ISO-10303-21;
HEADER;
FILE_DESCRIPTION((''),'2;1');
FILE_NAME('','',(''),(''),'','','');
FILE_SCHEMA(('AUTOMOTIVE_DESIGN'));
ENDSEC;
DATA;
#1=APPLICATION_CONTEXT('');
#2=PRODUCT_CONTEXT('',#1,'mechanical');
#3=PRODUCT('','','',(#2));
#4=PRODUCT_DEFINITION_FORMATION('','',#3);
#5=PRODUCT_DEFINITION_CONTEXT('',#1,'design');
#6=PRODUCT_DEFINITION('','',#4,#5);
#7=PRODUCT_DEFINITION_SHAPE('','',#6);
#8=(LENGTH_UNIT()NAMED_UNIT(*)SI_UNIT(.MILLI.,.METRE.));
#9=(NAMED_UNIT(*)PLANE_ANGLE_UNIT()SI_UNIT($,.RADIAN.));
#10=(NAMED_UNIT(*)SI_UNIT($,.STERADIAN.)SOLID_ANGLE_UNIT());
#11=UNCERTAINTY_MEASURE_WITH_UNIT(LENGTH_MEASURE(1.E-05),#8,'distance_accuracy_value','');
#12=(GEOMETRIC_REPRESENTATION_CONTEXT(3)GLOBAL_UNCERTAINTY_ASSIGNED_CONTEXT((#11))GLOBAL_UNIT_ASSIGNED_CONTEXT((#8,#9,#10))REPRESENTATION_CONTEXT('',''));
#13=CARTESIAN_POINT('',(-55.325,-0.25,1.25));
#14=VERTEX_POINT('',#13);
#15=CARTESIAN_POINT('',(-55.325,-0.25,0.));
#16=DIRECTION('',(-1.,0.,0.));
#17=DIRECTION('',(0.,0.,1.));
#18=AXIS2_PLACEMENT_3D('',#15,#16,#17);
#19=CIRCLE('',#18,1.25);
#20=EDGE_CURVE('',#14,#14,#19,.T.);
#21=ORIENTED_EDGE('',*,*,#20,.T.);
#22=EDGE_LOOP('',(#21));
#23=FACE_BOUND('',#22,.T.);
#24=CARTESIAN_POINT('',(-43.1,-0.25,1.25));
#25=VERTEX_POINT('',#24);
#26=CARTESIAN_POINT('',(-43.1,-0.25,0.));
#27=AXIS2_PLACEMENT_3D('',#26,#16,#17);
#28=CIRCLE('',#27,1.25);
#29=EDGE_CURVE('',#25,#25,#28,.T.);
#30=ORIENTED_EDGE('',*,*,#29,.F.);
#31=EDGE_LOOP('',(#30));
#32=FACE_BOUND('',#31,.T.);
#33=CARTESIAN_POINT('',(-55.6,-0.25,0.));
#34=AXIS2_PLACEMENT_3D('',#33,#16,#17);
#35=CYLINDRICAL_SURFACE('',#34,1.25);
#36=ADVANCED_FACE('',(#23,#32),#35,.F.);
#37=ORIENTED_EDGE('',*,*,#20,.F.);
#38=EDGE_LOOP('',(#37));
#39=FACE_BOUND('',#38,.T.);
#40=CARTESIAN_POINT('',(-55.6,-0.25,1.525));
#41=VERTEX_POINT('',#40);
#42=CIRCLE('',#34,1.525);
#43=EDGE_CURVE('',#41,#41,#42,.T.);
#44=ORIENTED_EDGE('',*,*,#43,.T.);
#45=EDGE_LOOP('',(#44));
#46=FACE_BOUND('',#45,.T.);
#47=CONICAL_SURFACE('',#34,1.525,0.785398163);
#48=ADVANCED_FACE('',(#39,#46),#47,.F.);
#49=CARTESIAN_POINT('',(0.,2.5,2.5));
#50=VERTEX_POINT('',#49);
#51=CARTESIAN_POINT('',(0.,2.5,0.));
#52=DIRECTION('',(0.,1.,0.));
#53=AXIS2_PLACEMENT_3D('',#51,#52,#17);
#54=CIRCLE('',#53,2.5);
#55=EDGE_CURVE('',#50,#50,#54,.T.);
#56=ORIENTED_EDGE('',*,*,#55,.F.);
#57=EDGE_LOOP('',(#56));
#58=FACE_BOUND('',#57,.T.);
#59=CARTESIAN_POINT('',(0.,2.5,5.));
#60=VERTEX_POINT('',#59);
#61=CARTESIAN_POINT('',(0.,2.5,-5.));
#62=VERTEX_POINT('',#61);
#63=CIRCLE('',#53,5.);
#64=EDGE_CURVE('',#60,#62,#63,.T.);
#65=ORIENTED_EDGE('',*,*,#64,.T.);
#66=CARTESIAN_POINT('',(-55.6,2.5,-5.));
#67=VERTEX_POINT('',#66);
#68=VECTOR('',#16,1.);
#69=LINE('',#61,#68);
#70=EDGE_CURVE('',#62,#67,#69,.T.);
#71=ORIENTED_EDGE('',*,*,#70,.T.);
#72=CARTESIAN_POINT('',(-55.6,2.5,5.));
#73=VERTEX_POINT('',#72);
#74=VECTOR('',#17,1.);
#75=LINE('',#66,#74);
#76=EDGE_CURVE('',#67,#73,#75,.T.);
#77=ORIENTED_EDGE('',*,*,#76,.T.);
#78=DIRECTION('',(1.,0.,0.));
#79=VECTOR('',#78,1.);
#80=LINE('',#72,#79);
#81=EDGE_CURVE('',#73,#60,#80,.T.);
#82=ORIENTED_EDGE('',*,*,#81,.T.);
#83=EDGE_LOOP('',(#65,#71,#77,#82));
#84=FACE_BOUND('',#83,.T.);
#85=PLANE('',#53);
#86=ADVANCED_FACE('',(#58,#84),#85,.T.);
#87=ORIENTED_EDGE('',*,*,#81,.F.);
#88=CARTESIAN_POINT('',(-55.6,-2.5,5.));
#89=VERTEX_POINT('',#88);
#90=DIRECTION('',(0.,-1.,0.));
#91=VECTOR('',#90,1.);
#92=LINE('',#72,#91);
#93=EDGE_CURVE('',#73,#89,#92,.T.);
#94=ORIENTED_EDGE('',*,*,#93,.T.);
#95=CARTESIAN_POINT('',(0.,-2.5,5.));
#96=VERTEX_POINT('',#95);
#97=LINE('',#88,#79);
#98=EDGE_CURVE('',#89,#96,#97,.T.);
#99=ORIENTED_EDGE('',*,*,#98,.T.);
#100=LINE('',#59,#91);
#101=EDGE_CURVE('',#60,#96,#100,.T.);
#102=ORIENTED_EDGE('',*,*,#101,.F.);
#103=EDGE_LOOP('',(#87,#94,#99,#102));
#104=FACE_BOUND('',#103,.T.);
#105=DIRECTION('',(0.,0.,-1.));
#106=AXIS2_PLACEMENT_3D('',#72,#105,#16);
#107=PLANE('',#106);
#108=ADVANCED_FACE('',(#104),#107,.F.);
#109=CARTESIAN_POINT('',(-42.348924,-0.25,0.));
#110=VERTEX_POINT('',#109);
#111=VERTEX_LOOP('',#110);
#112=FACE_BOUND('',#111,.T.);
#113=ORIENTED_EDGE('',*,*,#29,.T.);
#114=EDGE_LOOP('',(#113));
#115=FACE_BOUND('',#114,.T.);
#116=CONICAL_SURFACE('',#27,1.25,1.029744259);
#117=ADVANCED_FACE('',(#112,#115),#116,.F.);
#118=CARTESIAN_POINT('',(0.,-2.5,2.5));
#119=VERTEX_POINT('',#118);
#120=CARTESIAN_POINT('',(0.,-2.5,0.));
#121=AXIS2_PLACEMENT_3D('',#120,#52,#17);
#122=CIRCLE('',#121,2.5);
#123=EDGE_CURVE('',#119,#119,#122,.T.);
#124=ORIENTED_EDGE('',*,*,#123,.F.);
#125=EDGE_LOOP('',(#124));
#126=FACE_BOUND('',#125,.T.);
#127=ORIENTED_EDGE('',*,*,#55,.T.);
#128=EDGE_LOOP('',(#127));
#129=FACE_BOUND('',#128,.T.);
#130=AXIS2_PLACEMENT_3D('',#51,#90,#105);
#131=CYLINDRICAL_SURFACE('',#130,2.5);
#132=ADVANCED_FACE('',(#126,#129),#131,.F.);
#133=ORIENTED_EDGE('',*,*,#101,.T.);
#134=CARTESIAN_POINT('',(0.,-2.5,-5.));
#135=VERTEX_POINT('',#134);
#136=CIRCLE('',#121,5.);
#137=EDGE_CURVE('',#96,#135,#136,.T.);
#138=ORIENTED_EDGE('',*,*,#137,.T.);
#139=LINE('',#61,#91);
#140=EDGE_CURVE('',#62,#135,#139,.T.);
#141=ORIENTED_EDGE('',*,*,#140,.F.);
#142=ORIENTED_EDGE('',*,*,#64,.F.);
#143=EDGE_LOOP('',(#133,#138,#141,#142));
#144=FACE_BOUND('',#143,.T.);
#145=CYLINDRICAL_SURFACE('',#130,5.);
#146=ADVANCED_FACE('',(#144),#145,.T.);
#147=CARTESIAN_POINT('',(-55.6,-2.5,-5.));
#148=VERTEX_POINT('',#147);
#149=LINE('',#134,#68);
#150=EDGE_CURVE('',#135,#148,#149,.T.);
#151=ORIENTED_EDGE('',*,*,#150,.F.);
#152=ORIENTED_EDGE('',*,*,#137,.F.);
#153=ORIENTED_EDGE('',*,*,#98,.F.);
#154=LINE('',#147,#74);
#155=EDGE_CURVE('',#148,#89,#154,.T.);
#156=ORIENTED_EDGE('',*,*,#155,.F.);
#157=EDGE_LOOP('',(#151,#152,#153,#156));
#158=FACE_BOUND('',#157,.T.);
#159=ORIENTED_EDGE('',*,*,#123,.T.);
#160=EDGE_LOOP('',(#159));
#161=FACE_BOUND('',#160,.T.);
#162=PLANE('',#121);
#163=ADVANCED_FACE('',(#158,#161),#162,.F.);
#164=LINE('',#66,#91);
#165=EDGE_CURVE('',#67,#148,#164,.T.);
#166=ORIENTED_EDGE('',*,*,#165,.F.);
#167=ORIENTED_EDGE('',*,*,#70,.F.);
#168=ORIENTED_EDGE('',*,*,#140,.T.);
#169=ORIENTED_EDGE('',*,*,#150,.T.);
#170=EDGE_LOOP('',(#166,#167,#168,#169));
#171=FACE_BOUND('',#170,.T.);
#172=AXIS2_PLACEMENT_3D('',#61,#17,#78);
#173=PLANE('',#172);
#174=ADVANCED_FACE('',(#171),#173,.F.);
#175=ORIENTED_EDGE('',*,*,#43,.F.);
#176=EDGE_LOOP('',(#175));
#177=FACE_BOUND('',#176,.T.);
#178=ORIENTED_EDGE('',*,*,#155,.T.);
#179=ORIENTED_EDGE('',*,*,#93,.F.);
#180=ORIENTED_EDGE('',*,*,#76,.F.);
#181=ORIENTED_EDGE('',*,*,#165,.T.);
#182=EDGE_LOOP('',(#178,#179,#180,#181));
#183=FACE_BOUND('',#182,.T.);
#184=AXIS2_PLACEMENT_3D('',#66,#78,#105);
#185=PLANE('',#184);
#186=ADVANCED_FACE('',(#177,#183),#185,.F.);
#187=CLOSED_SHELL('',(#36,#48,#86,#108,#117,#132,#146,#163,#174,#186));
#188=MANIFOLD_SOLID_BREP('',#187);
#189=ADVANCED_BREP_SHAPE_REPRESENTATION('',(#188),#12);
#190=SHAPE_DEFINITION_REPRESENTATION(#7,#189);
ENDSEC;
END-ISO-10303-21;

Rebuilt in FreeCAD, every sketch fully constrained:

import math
import FreeCAD as App
import Part
import Sketcher

doc = App.newDocument("Part")
body = doc.addObject("PartDesign::Body", "Body")

# Sketch on XZ plane
sketch1 = body.newObject("Sketcher::SketchObject", "Sketch")
sketch1.AttachmentSupport = (doc.getObject("XZ_Plane"), [""])
sketch1.MapMode = "FlatFace"
sketch1.addGeometry(Part.LineSegment(App.Vector(-55.6, 5, 0), App.Vector(0, 5, 0)), False)
sketch1.addGeometry(Part.ArcOfCircle(Part.Circle(App.Vector(0, 0, 0), App.Vector(0, 0, 1), 5), math.radians(-90), math.radians(90)), False)
sketch1.addGeometry(Part.LineSegment(App.Vector(0, -5, 0), App.Vector(-55.6, -5, 0)), False)
sketch1.addGeometry(Part.LineSegment(App.Vector(-55.6, -5, 0), App.Vector(-55.6, 5, 0)), False)
sketch1.addGeometry(Part.Circle(App.Vector(0, 0, 0), App.Vector(0, 0, 1), 2.5), False)
sketch1.addConstraint(Sketcher.Constraint("Tangent", 0, 2, 1, 2))
sketch1.addConstraint(Sketcher.Constraint("Tangent", 1, 1, 2, 1))
sketch1.addConstraint(Sketcher.Constraint("Coincident", 2, 2, 3, 1))
sketch1.addConstraint(Sketcher.Constraint("Coincident", 3, 2, 0, 1))
sketch1.addConstraint(Sketcher.Constraint("Horizontal", 0))
sketch1.addConstraint(Sketcher.Constraint("Horizontal", 2))
sketch1.addConstraint(Sketcher.Constraint("Vertical", 3))
sketch1.addConstraint(Sketcher.Constraint("Coincident", 1, 3, -1, 1))
sketch1.addConstraint(Sketcher.Constraint("Coincident", 4, 3, -1, 1))
sketch1.addConstraint(Sketcher.Constraint("Diameter", 4, 5.0))
sketch1.addConstraint(Sketcher.Constraint("Radius", 1, 5.0))
sketch1.addConstraint(Sketcher.Constraint("DistanceX", 0, 1, 0, 2, 55.6))
pad1 = body.newObject("PartDesign::Pad", "Pad")
pad1.Profile = sketch1
pad1.Length = 5
pad1.Midplane = True

# Sketch on YZ plane
sketch2 = body.newObject("Sketcher::SketchObject", "Sketch001")
sketch2.AttachmentSupport = (doc.getObject("YZ_Plane"), [""])
sketch2.MapMode = "FlatFace"
sketch2.AttachmentOffset = App.Placement(App.Vector(0, 0, -55.6), App.Rotation())
sketch2.addGeometry(Part.Circle(App.Vector(-0.25, 0, 0), App.Vector(0, 0, 1), 1.25), False)
sketch2.addConstraint(Sketcher.Constraint("PointOnObject", 0, 3, -1))
sketch2.addConstraint(Sketcher.Constraint("Diameter", 0, 2.5))
sketch2.addConstraint(Sketcher.Constraint("DistanceX", 0, 3, -1, 1, 0.25))
doc.recompute()
hole = body.newObject("PartDesign::Hole", "Hole")
hole.Profile = sketch2
hole.ThreadType = "None"
hole.Diameter = 2.5
hole.DepthType = "Dimension"
hole.Depth = 12.5
hole.DrillPoint = "Angled"
hole.DrillPointAngle = 118
hole.HoleCutType = "Countersink"
hole.HoleCutDiameter = 3.05
hole.HoleCutCountersinkAngle = 90
hole.Reversed = True

doc.recompute()
